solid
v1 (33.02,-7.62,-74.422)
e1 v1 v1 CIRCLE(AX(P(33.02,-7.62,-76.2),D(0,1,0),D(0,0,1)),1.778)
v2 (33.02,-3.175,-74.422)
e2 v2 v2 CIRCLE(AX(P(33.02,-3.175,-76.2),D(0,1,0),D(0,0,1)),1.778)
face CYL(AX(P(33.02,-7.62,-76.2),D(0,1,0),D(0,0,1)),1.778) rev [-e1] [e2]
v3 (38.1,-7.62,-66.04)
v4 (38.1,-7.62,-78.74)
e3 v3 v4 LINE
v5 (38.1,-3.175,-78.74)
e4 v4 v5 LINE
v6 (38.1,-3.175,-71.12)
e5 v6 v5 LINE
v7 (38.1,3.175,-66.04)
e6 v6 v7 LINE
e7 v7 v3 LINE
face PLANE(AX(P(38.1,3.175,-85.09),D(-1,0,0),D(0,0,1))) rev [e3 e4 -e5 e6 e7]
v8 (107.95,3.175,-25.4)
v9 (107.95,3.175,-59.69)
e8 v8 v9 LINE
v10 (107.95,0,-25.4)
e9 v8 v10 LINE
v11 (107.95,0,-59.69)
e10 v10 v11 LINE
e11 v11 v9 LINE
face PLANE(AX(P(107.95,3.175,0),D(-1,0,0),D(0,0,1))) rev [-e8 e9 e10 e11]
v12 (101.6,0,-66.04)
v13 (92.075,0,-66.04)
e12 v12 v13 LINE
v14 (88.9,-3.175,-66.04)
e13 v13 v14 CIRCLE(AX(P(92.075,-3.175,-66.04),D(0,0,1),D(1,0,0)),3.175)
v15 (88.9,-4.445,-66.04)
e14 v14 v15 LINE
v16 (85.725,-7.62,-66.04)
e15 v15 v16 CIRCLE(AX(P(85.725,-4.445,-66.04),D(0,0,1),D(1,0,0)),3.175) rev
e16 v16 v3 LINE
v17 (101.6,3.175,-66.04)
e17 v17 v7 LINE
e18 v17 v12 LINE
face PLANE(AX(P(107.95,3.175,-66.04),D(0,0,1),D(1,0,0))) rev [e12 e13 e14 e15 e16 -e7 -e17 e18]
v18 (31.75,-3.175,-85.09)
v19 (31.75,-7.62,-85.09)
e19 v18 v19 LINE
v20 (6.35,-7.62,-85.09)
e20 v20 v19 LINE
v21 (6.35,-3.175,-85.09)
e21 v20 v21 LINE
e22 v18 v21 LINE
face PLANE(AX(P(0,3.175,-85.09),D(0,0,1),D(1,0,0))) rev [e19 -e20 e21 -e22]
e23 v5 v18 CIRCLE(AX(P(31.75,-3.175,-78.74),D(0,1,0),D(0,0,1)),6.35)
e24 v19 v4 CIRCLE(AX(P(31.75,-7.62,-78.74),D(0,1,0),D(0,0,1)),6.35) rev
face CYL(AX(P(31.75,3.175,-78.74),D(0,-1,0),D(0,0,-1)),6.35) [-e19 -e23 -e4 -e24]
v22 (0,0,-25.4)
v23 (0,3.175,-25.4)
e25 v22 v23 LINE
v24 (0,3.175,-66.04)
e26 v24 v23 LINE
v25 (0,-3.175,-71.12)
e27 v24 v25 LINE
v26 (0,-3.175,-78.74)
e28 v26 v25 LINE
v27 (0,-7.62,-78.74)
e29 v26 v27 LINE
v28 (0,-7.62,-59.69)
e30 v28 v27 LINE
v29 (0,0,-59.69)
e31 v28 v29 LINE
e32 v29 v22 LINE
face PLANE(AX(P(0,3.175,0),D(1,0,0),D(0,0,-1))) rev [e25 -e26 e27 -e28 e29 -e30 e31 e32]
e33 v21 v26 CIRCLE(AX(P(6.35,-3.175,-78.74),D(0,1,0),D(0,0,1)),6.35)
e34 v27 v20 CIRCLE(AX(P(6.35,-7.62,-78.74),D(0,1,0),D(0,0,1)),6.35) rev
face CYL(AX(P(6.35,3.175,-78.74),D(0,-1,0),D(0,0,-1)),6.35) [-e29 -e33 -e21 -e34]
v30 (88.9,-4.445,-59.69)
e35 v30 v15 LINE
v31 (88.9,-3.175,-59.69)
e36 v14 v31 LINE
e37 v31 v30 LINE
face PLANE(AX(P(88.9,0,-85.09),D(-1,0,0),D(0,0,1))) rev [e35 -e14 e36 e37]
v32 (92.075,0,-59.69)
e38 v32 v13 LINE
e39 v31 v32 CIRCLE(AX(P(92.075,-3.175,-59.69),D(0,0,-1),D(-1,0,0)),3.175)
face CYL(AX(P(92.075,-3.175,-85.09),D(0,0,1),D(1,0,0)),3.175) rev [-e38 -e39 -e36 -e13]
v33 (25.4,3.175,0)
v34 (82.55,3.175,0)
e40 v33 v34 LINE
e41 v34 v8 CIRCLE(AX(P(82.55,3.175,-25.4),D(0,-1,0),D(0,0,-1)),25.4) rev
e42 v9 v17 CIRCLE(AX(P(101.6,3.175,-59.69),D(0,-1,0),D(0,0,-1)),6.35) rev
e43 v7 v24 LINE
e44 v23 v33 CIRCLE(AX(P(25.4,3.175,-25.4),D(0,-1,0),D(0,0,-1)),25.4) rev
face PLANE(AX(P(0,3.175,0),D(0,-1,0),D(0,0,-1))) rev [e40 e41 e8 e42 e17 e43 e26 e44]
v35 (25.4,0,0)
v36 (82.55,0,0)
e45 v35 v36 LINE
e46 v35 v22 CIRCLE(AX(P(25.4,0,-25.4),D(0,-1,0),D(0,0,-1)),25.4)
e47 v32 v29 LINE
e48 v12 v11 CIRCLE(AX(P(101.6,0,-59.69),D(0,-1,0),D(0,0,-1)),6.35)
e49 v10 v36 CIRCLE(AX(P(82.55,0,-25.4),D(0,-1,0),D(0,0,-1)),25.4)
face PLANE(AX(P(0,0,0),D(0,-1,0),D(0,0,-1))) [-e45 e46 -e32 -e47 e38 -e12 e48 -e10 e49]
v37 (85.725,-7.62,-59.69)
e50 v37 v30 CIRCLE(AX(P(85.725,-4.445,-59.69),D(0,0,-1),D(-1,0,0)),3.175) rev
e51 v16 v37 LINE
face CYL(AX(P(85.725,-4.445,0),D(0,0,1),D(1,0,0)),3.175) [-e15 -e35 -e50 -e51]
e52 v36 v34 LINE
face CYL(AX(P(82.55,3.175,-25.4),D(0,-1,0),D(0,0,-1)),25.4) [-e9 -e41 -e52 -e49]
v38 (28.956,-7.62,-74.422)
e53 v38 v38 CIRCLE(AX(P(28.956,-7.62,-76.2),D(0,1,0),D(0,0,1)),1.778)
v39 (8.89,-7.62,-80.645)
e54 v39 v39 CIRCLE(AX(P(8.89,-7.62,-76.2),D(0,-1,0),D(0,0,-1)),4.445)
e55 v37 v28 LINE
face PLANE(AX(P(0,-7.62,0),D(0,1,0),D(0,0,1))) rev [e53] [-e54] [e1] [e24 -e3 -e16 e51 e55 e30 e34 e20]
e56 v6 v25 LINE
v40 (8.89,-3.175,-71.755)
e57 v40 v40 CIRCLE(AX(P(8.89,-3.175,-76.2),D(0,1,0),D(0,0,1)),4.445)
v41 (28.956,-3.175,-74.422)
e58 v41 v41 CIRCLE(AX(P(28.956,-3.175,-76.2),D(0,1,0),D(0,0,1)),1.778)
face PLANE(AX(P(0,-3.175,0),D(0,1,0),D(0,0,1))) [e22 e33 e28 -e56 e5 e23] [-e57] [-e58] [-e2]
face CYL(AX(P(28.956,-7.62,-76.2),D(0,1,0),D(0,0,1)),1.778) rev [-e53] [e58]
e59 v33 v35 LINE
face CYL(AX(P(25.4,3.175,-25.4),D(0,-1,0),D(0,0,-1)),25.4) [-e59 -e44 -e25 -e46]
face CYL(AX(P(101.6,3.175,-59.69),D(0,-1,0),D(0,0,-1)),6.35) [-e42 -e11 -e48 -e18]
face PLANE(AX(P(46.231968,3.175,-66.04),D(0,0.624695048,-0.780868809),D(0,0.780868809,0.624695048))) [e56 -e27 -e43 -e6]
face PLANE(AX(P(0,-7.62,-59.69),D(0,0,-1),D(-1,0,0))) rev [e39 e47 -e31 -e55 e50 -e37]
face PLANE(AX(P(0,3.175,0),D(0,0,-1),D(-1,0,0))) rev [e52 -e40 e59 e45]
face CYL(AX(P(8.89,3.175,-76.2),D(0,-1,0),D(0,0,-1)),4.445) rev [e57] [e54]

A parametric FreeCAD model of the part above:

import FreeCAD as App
import Part
import Sketcher

V = App.Vector
Q = App.Units.Quantity


def edges_at(feature, points):
    """Names of the edges that pass closest to the given points."""
    edges = feature.Shape.Edges
    near = lambda p: min(range(len(edges)), key=lambda i: edges[i].distToShape(Part.Vertex(*p))[0])
    return sorted({f"Edge{near(p) + 1}" for p in points})

doc = App.newDocument("Part")
params = doc.addObject("Spreadsheet::Sheet", "Params")
for row, (alias, value) in enumerate([
    ("sketch1_diameter", "0.35 in"),
    ("sketch1_width", "4.25 in"),
    ("sketch1_height", "3.35 in"),
    ("pad1_length", "0.125 in"),
    ("sketch2_diameter", "0.35 in"),
    ("sketch2_height", "1 in"),
    ("sketch2_width", "4.25 in"),
    ("pad2_length", "0.3 in"),
    ("sketch3_width", "2.75 in"),
    ("sketch3_height", "0.75 in"),
    ("sketch4_width", "1.5 in"),
    ("sketch4_height", "0.75 in"),
    ("pocket2_length", "0.25 in"),
    ("sketch5_diameter", "0.14 in"),
    ("sketch6_height", "0.3 in"),
    ("sketch6_width", "0.75 in"),
    ("sketch7_height", "0.2 in"),
    ("sketch7_width", "0.25 in"),
    ("pad3_length", "1.5 in"),
    ("fillet_radius", "1 in"),
    ("fillet2_radius", "0.25 in"),
    ("fillet3_radius", "0.125 in"),
], start=1):
    params.set(f"A{row}", alias)
    params.set(f"B{row}", "=" + value)
    params.setAlias(f"B{row}", alias)

body = doc.addObject("PartDesign::Body", "Body")

# Sketch on XZ plane
sketch1 = body.newObject("Sketcher::SketchObject", "Sketch")
sketch1.AttachmentSupport = (doc.getObject("XZ_Plane"), [""])
sketch1.MapMode = "FlatFace"
sketch1.addGeometry([
    Part.LineSegment(V(0, -85.09, 0), V(0, 0, 0)),  # 0
    Part.LineSegment(V(0, 0, 0), V(107.95, 0, 0)),  # 1
    Part.LineSegment(V(107.95, 0, 0), V(107.95, -85.09, 0)),  # 2
    Part.LineSegment(V(107.95, -85.09, 0), V(0, -85.09, 0)),  # 3
    Part.Circle(V(8.89, -76.2, 0), V(0, 0, 1), 4.445),  # 4
], False)
sketch1.addConstraint([
    Sketcher.Constraint("Coincident", 0, 2, 1, 1),
    Sketcher.Constraint("Coincident", 1, 2, 2, 1),
    Sketcher.Constraint("Coincident", 2, 2, 3, 1),
    Sketcher.Constraint("Coincident", 3, 2, 0, 1),
    Sketcher.Constraint("Vertical", 0),
    Sketcher.Constraint("Horizontal", 1),
    Sketcher.Constraint("Vertical", 2),
    Sketcher.Constraint("Horizontal", 3),
    Sketcher.Constraint("Coincident", 0, 2, -1, 1),
    Sketcher.Constraint("Diameter", 4, Q("0.35 in")),
    Sketcher.Constraint("DistanceY", 4, 3, -1, 1, Q("3 in")),
    Sketcher.Constraint("DistanceX", 1, 1, 1, 2, Q("4.25 in")),
    Sketcher.Constraint("DistanceY", 0, 1, 0, 2, Q("3.35 in")),
    Sketcher.Constraint("DistanceX", 4, 3, 1, 2, Q("3.9 in")),
])
sketch1.setExpression("Constraints[9]", "Params.sketch1_diameter")
sketch1.setExpression("Constraints[11]", "Params.sketch1_width")
sketch1.setExpression("Constraints[12]", "Params.sketch1_height")
pad1 = body.newObject("PartDesign::Pad", "Pad")
pad1.Profile = sketch1
pad1.setExpression("Length", "Params.pad1_length")
pad1.Reversed = True

# Sketch on XZ plane
sketch2 = body.newObject("Sketcher::SketchObject", "Sketch001")
sketch2.AttachmentSupport = (doc.getObject("XZ_Plane"), [""])
sketch2.MapMode = "FlatFace"
sketch2.addGeometry([
    Part.LineSegment(V(0, -59.69, 0), V(0, -85.09, 0)),  # 0
    Part.LineSegment(V(0, -85.09, 0), V(107.95, -85.09, 0)),  # 1
    Part.LineSegment(V(107.95, -85.09, 0), V(107.95, -59.69, 0)),  # 2
    Part.LineSegment(V(107.95, -59.69, 0), V(0, -59.69, 0)),  # 3
    Part.Circle(V(8.89, -76.2, 0), V(0, 0, 1), 4.445),  # 4
], False)
sketch2.addConstraint([
    Sketcher.Constraint("Coincident", 0, 2, 1, 1),
    Sketcher.Constraint("Coincident", 1, 2, 2, 1),
    Sketcher.Constraint("Coincident", 2, 2, 3, 1),
    Sketcher.Constraint("Coincident", 3, 2, 0, 1),
    Sketcher.Constraint("Vertical", 0),
    Sketcher.Constraint("Horizontal", 1),
    Sketcher.Constraint("Vertical", 2),
    Sketcher.Constraint("Horizontal", 3),
    Sketcher.Constraint("PointOnObject", 0, 2, -2),
    Sketcher.Constraint("Diameter", 4, Q("0.35 in")),
    Sketcher.Constraint("DistanceY", 0, 2, 0, 1, Q("1 in")),
    Sketcher.Constraint("DistanceY", 4, 3, -1, 1, Q("3 in")),
    Sketcher.Constraint("DistanceX", 1, 1, 1, 2, Q("4.25 in")),
    Sketcher.Constraint("DistanceX", 4, 3, 1, 2, Q("3.9 in")),
    Sketcher.Constraint("DistanceY", 0, 2, -1, 1, Q("3.35 in")),
])
sketch2.setExpression("Constraints[9]", "Params.sketch2_diameter")
sketch2.setExpression("Constraints[10]", "Params.sketch2_height")
sketch2.setExpression("Constraints[12]", "Params.sketch2_width")
pad2 = body.newObject("PartDesign::Pad", "Pad001")
pad2.Profile = sketch2
pad2.setExpression("Length", "Params.pad2_length")

# Sketch on XZ plane
sketch3 = body.newObject("Sketcher::SketchObject", "Sketch002")
sketch3.AttachmentSupport = (doc.getObject("XZ_Plane"), [""])
sketch3.MapMode = "FlatFace"
sketch3.AttachmentOffset = App.Placement(V(0, 0, 0.3 * 25.4), App.Rotation())
sketch3.addGeometry([
    Part.LineSegment(V(38.1, -66.04, 0), V(38.1, -85.09, 0)),
    Part.LineSegment(V(38.1, -85.09, 0), V(107.95, -85.09, 0)),
    Part.LineSegment(V(107.95, -85.09, 0), V(107.95, -66.04, 0)),
    Part.LineSegment(V(107.95, -66.04, 0), V(38.1, -66.04, 0)),
], False)
sketch3.addConstraint([
    Sketcher.Constraint("Coincident", 0, 2, 1, 1),
    Sketcher.Constraint("Coincident", 1, 2, 2, 1),
    Sketcher.Constraint("Coincident", 2, 2, 3, 1),
    Sketcher.Constraint("Coincident", 3, 2, 0, 1),
    Sketcher.Constraint("Vertical", 0),
    Sketcher.Constraint("Horizontal", 1),
    Sketcher.Constraint("Vertical", 2),
    Sketcher.Constraint("Horizontal", 3),
    Sketcher.Constraint("DistanceX", 1, 1, 1, 2, Q("2.75 in")),
    Sketcher.Constraint("DistanceY", 0, 2, 0, 1, Q("0.75 in")),
    Sketcher.Constraint("DistanceX", -1, 1, 0, 2, Q("1.5 in")),
    Sketcher.Constraint("DistanceY", 2, 2, -1, 1, Q("2.6 in")),
])
sketch3.setExpression("Constraints[8]", "Params.sketch3_width")
sketch3.setExpression("Constraints[9]", "Params.sketch3_height")
pocket1 = body.newObject("PartDesign::Pocket", "Pocket")
pocket1.Profile = sketch3
pocket1.Type = "ThroughAll"

# Sketch on XZ plane
sketch4 = body.newObject("Sketcher::SketchObject", "Sketch003")
sketch4.AttachmentSupport = (doc.getObject("XZ_Plane"), [""])
sketch4.MapMode = "FlatFace"
sketch4.AttachmentOffset = App.Placement(V(0, 0, -0.125 * 25.4), App.Rotation())
sketch4.addGeometry([
    Part.LineSegment(V(0, -85.09, 0), V(0, -66.04, 0)),
    Part.LineSegment(V(0, -66.04, 0), V(38.1, -66.04, 0)),
    Part.LineSegment(V(38.1, -66.04, 0), V(38.1, -85.09, 0)),
    Part.LineSegment(V(38.1, -85.09, 0), V(0, -85.09, 0)),
], False)
sketch4.addConstraint([
    Sketcher.Constraint("Coincident", 0, 2, 1, 1),
    Sketcher.Constraint("Coincident", 1, 2, 2, 1),
    Sketcher.Constraint("Coincident", 2, 2, 3, 1),
    Sketcher.Constraint("Coincident", 3, 2, 0, 1),
    Sketcher.Constraint("Vertical", 0),
    Sketcher.Constraint("Horizontal", 1),
    Sketcher.Constraint("Vertical", 2),
    Sketcher.Constraint("Horizontal", 3),
    Sketcher.Constraint("PointOnObject", 0, 2, -2),
    Sketcher.Constraint("DistanceX", 1, 1, 1, 2, Q("1.5 in")),
    Sketcher.Constraint("DistanceY", 0, 1, 0, 2, Q("0.75 in")),
    Sketcher.Constraint("DistanceY", 0, 2, -1, 1, Q("2.6 in")),
])
sketch4.setExpression("Constraints[9]", "Params.sketch4_width")
sketch4.setExpression("Constraints[10]", "Params.sketch4_height")
pocket2 = body.newObject("PartDesign::Pocket", "Pocket001")
pocket2.Profile = sketch4
pocket2.setExpression("Length", "Params.pocket2_length")
pocket2.Reversed = True

# Sketch on XZ plane
sketch5 = body.newObject("Sketcher::SketchObject", "Sketch004")
sketch5.AttachmentSupport = (doc.getObject("XZ_Plane"), [""])
sketch5.MapMode = "FlatFace"
sketch5.AttachmentOffset = App.Placement(V(0, 0, 0.125 * 25.4), App.Rotation())
sketch5.addGeometry([
    Part.Circle(V(28.956, -76.2, 0), V(0, 0, 1), 1.778),
    Part.Circle(V(33.02, -76.2, 0), V(0, 0, 1), 1.778),
], False)
sketch5.addConstraint([
    Sketcher.Constraint("Equal", 0, 1),
    Sketcher.Constraint("Horizontal", 0, 3, 1, 3),
    Sketcher.Constraint("Diameter", 0, Q("0.14 in")),
    Sketcher.Constraint("DistanceY", 0, 3, -1, 1, Q("3 in")),
    Sketcher.Constraint("DistanceX", -1, 1, 1, 3, Q("1.3 in")),
    Sketcher.Constraint("DistanceX", -1, 1, 0, 3, Q("1.14 in")),
])
sketch5.setExpression("Constraints[2]", "Params.sketch5_diameter")
pocket3 = body.newObject("PartDesign::Pocket", "Pocket002")
pocket3.Profile = sketch5
pocket3.Type = "ThroughAll"
pocket3.Reversed = True

# Sketch on XY plane
sketch6 = body.newObject("Sketcher::SketchObject", "Sketch005")
sketch6.AttachmentSupport = (doc.getObject("XY_Plane"), [""])
sketch6.MapMode = "FlatFace"
sketch6.AttachmentOffset = App.Placement(V(0, 0, -2.35 * 25.4), App.Rotation())
sketch6.addGeometry([
    Part.LineSegment(V(88.9, 0, 0), V(88.9, -7.62, 0)),
    Part.LineSegment(V(88.9, -7.62, 0), V(107.95, -7.62, 0)),
    Part.LineSegment(V(107.95, -7.62, 0), V(107.95, 0, 0)),
    Part.LineSegment(V(107.95, 0, 0), V(88.9, 0, 0)),
], False)
sketch6.addConstraint([
    Sketcher.Constraint("Coincident", 0, 2, 1, 1),
    Sketcher.Constraint("Coincident", 1, 2, 2, 1),
    Sketcher.Constraint("Coincident", 2, 2, 3, 1),
    Sketcher.Constraint("Coincident", 3, 2, 0, 1),
    Sketcher.Constraint("Vertical", 0),
    Sketcher.Constraint("Horizontal", 1),
    Sketcher.Constraint("Vertical", 2),
    Sketcher.Constraint("Horizontal", 3),
    Sketcher.Constraint("PointOnObject", 2, 2, -1),
    Sketcher.Constraint("DistanceY", 0, 2, 0, 1, Q("0.3 in")),
    Sketcher.Constraint("DistanceX", 1, 1, 1, 2, Q("0.75 in")),
    Sketcher.Constraint("DistanceX", -1, 1, 0, 2, Q("3.5 in")),
])
sketch6.setExpression("Constraints[9]", "Params.sketch6_height")
sketch6.setExpression("Constraints[10]", "Params.sketch6_width")
pocket4 = body.newObject("PartDesign::Pocket", "Pocket003")
pocket4.Profile = sketch6
pocket4.Type = "ThroughAll"

# Sketch on YZ plane
sketch7 = body.newObject("Sketcher::SketchObject", "Sketch006")
sketch7.AttachmentSupport = (doc.getObject("YZ_Plane"), [""])
sketch7.MapMode = "FlatFace"
sketch7.addGeometry([
    Part.LineSegment(V(3.175, -66.04, 0), V(-3.175, -71.12, 0)),
    Part.LineSegment(V(-3.175, -71.12, 0), V(-3.175, -66.04, 0)),
    Part.LineSegment(V(-3.175, -66.04, 0), V(3.175, -66.04, 0)),
], False)
sketch7.addConstraint([
    Sketcher.Constraint("Coincident", 0, 2, 1, 1),
    Sketcher.Constraint("Coincident", 1, 2, 2, 1),
    Sketcher.Constraint("Coincident", 2, 2, 0, 1),
    Sketcher.Constraint("Vertical", 1),
    Sketcher.Constraint("Horizontal", 2),
    Sketcher.Constraint("DistanceY", 1, 1, 1, 2, Q("0.2 in")),
    Sketcher.Constraint("DistanceX", 2, 1, 2, 2, Q("0.25 in")),
    Sketcher.Constraint("DistanceY", 0, 2, -1, 1, Q("2.8 in")),
    Sketcher.Constraint("DistanceX", 0, 2, -1, 1, Q("0.125 in")),
])
sketch7.setExpression("Constraints[5]", "Params.sketch7_height")
sketch7.setExpression("Constraints[6]", "Params.sketch7_width")
pad3 = body.newObject("PartDesign::Pad", "Pad002")
pad3.Profile = sketch7
pad3.setExpression("Length", "Params.pad3_length")
doc.recompute()

fillet = body.newObject("PartDesign::Fillet", "Fillet")
fillet.Base = (pad3, edges_at(pad3, [(107.95, 1.587, 0), (0, 1.587, 0)]))
fillet.setExpression("Radius", "Params.fillet_radius")
doc.recompute()

fillet2 = body.newObject("PartDesign::Fillet", "Fillet001")
fillet2.Base = (fillet, edges_at(fillet, [(107.95, 1.587, -66.04), (38.1, -5.397, -85.09), (0, -5.397, -85.09)]))
fillet2.setExpression("Radius", "Params.fillet2_radius")
doc.recompute()

fillet3 = body.newObject("PartDesign::Fillet", "Fillet002")
fillet3.Base = (fillet2, edges_at(fillet2, [(88.9, -7.62, -62.865), (88.9, 0, -62.865)]))
fillet3.setExpression("Radius", "Params.fillet3_radius")

doc.recompute()
